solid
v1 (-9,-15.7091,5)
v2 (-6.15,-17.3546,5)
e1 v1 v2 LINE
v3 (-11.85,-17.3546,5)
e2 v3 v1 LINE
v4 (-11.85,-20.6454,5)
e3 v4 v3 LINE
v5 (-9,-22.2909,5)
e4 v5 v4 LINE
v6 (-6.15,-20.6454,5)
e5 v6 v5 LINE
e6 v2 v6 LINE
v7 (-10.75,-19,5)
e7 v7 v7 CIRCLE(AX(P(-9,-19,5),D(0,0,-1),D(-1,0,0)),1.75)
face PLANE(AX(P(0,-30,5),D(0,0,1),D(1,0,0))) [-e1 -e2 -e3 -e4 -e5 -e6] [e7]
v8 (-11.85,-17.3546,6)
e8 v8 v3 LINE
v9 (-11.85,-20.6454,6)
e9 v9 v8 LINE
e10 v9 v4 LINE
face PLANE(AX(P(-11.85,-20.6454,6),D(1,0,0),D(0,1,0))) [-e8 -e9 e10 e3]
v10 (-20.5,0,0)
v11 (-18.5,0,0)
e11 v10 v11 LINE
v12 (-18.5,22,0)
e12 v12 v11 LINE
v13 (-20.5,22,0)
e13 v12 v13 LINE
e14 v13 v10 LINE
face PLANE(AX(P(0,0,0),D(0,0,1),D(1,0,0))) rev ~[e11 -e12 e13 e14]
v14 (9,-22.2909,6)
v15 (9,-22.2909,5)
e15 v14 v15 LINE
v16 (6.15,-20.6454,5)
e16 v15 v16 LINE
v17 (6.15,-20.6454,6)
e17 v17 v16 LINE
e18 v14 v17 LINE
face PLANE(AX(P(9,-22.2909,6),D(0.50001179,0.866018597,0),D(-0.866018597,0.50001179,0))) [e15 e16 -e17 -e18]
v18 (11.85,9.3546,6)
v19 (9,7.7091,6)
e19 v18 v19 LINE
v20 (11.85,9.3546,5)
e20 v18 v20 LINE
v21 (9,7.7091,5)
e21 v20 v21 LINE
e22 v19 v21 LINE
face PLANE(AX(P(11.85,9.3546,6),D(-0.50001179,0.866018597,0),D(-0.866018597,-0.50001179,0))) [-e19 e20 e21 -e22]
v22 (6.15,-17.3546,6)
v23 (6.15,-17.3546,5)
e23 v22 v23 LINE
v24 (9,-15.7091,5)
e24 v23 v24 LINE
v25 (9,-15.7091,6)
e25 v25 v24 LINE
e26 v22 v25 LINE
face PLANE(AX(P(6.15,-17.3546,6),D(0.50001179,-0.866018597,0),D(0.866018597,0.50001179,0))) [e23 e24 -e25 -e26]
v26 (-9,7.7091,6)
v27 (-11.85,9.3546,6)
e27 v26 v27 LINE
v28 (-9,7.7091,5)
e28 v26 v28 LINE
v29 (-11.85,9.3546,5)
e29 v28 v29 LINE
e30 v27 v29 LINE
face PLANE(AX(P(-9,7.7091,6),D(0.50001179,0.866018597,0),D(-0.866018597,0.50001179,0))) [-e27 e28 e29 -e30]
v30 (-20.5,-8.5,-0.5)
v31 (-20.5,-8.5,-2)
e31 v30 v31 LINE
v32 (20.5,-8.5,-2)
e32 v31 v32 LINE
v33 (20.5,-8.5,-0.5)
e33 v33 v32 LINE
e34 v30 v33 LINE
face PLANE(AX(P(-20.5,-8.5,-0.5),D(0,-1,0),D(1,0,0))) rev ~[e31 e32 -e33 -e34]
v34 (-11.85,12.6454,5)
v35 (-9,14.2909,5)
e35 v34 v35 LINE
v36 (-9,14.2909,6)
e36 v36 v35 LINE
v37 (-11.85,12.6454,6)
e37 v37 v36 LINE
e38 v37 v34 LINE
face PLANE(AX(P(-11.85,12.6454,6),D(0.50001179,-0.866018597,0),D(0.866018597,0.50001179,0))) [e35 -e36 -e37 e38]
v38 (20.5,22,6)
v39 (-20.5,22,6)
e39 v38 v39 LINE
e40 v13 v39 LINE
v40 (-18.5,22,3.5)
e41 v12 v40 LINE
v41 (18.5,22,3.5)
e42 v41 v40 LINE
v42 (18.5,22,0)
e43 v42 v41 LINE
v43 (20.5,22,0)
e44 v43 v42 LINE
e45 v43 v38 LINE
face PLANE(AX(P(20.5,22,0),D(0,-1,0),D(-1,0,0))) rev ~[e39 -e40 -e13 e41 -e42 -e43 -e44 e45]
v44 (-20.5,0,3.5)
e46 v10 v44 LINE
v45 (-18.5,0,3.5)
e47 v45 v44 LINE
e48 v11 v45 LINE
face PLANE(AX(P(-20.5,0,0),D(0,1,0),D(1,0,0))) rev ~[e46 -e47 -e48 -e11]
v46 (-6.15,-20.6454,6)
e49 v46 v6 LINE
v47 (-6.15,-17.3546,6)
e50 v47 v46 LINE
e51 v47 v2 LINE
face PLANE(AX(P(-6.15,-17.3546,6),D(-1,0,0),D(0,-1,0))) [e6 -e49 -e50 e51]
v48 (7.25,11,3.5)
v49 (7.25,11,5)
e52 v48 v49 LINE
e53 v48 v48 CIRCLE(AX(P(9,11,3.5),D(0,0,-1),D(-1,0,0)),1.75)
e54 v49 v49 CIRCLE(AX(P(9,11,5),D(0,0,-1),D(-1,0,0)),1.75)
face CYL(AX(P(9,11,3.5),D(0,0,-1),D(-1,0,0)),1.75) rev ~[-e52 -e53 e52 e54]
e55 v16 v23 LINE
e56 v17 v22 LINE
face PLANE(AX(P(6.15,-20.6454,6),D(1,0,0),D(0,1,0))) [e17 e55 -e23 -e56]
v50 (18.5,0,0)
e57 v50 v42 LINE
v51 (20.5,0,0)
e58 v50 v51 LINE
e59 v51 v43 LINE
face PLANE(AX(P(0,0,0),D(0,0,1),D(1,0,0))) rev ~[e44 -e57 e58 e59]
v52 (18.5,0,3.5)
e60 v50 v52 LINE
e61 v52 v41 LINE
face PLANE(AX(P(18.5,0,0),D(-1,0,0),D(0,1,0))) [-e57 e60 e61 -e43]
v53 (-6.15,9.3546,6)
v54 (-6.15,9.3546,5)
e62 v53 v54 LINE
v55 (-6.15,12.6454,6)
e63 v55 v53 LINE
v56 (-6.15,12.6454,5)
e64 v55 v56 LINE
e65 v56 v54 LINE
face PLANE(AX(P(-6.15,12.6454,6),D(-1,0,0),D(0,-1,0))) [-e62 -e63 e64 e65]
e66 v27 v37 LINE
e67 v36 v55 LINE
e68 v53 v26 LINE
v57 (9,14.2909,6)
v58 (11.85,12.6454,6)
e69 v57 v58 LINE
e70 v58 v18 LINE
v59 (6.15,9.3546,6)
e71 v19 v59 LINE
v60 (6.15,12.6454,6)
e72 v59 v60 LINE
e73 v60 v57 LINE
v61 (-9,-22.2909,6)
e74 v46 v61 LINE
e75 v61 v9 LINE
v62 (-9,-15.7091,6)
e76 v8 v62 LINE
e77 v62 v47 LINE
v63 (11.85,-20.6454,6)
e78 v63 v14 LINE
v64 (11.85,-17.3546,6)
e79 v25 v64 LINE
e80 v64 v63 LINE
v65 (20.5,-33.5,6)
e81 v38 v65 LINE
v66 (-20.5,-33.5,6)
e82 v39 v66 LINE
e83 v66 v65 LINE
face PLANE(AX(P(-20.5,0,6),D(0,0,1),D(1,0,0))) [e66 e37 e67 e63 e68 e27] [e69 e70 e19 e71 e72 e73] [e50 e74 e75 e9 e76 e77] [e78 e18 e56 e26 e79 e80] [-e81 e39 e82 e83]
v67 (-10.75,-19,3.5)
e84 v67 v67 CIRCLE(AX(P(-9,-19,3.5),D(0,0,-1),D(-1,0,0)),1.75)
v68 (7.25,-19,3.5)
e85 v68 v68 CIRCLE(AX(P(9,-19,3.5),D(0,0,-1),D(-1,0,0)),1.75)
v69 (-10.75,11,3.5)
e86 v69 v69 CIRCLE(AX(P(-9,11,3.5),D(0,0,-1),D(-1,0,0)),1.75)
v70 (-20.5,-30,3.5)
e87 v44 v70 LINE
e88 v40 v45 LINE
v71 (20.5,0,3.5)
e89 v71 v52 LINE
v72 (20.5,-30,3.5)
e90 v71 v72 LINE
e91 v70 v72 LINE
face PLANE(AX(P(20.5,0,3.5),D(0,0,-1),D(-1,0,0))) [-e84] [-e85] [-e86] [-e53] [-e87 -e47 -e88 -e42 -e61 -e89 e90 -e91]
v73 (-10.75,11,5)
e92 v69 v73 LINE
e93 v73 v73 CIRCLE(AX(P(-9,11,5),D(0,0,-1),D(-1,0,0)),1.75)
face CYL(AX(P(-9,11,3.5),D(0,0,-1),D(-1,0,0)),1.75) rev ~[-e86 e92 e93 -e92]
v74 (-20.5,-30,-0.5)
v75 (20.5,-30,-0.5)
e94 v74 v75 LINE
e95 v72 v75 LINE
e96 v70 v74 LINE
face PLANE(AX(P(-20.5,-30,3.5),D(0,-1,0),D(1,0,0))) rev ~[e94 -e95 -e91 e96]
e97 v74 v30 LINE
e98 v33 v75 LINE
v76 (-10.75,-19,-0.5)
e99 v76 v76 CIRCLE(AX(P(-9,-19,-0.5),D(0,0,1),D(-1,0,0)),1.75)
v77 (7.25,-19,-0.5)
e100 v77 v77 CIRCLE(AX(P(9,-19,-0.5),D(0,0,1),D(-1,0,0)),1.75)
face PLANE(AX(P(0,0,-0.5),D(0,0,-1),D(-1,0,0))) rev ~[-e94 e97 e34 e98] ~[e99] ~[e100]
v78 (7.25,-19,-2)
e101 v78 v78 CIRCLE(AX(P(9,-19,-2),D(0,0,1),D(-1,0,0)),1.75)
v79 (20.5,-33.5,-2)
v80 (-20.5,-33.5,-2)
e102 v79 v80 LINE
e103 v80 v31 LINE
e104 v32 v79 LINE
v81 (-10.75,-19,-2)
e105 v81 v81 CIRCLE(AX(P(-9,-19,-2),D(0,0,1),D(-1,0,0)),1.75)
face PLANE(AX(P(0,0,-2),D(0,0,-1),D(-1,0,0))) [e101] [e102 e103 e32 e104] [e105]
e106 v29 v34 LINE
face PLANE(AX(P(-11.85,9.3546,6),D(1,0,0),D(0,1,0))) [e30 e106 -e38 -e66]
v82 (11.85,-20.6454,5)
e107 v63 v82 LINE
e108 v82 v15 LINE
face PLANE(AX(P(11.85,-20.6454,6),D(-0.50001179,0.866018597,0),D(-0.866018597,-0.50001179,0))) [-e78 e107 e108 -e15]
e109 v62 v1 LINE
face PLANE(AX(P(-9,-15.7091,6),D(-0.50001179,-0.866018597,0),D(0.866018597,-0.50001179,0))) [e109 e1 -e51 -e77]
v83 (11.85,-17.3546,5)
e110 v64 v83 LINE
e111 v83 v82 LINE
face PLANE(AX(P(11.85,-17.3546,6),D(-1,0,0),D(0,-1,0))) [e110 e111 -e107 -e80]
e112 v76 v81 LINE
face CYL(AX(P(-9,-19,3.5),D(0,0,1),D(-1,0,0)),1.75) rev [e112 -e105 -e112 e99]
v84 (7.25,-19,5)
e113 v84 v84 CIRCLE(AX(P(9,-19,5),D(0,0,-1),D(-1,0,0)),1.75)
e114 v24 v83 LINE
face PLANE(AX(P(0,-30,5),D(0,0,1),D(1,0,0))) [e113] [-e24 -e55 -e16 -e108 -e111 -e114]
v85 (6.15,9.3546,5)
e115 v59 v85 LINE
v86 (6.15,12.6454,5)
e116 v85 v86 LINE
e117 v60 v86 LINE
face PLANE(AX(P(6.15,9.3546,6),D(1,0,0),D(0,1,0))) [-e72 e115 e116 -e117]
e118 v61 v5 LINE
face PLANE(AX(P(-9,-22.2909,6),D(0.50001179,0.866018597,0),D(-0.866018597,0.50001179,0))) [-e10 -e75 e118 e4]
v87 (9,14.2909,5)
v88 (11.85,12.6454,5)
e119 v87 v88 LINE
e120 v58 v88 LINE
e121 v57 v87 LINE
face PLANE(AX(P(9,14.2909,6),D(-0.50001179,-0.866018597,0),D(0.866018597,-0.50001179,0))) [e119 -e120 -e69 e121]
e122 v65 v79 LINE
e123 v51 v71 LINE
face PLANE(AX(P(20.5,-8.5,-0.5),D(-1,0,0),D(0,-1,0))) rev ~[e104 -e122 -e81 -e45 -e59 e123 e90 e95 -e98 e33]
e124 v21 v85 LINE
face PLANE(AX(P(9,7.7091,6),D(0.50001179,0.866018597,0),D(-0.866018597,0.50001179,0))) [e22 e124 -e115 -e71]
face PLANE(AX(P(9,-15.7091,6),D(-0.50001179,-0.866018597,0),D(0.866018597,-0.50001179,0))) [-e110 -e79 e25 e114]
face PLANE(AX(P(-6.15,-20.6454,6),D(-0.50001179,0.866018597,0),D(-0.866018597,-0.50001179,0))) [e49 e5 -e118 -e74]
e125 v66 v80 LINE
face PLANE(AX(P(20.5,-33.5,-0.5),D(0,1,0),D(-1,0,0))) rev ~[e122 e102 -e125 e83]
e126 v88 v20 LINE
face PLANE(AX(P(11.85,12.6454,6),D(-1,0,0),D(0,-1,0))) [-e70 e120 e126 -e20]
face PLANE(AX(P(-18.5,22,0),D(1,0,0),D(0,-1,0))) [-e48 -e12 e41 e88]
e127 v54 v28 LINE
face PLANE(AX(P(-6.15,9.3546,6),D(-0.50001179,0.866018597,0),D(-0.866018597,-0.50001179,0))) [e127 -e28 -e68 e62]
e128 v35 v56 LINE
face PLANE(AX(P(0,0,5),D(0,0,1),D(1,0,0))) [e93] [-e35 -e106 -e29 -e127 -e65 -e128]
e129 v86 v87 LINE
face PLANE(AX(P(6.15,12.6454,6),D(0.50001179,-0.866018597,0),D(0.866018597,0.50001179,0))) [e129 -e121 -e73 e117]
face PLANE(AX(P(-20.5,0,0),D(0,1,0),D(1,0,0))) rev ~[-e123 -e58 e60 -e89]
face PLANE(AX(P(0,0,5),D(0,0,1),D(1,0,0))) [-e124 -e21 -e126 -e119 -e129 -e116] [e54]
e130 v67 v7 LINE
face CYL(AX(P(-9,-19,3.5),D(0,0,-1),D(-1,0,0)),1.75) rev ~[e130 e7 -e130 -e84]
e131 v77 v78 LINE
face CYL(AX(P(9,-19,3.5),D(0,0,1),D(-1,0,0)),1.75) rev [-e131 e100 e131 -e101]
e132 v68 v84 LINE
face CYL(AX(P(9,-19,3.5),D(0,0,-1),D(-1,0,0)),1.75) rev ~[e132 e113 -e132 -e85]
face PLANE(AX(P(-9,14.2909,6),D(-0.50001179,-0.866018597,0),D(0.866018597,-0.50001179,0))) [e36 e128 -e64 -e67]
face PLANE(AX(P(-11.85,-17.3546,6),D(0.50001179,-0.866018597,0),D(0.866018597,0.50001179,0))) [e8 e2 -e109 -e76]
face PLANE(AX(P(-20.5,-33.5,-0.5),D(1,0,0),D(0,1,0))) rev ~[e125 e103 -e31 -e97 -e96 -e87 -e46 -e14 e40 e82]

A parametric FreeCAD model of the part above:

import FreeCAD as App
import Part
import Sketcher

V = App.Vector
Q = App.Units.Quantity

doc = App.newDocument("Part")
params = doc.addObject("Spreadsheet::Sheet", "Params")
for row, (alias, value) in enumerate([
    ("sketch1_width", "41 mm"),
    ("sketch1_height", "22 mm"),
    ("pad1_length", "6 mm"),
    ("sketch2_width", "37 mm"),
    ("sketch2_height", "22 mm"),
    ("pocket1_length", "3.5 mm"),
    ("sketch3_diameter", "3.5 mm"),
    ("pocket2_length", "50 mm"),
    ("pocket3_length", "1 mm"),
    ("sketch5_width", "41 mm"),
    ("sketch5_height", "2.5 mm"),
    ("pad2_length", "33.5 mm"),
    ("sketch6_height", "3.5 mm"),
    ("sketch6_width", "41 mm"),
    ("pad3_length", "4 mm"),
    ("sketch7_height", "25 mm"),
    ("sketch7_width", "41 mm"),
    ("pad4_length", "1.5 mm"),
    ("linearpattern_pitch", "30 mm"),
], start=1):
    params.set(f"A{row}", alias)
    params.set(f"B{row}", "=" + value)
    params.setAlias(f"B{row}", alias)

body = doc.addObject("PartDesign::Body", "Body")

sketch1 = body.newObject("Sketcher::SketchObject", "Sketch")
sketch1.AttachmentSupport = (doc.getObject("XY_Plane"), [""])
sketch1.MapMode = "FlatFace"
sketch1.addGeometry([
    Part.LineSegment(V(-20.5, 22, 0), V(-20.5, 0, 0)),
    Part.LineSegment(V(-20.5, 0, 0), V(20.5, 0, 0)),
    Part.LineSegment(V(20.5, 0, 0), V(20.5, 22, 0)),
    Part.LineSegment(V(20.5, 22, 0), V(-20.5, 22, 0)),
], False)
sketch1.addConstraint([
    Sketcher.Constraint("Coincident", 0, 2, 1, 1),
    Sketcher.Constraint("Coincident", 1, 2, 2, 1),
    Sketcher.Constraint("Coincident", 2, 2, 3, 1),
    Sketcher.Constraint("Coincident", 3, 2, 0, 1),
    Sketcher.Constraint("Vertical", 0),
    Sketcher.Constraint("Horizontal", 1),
    Sketcher.Constraint("Vertical", 2),
    Sketcher.Constraint("Horizontal", 3),
    Sketcher.Constraint("Symmetric", 0, 2, 1, 2, -1, 1),
    Sketcher.Constraint("DistanceX", 1, 1, 1, 2, 41.0),
    Sketcher.Constraint("DistanceY", 0, 2, 0, 1, 22.0),
])
sketch1.setExpression("Constraints[9]", "Params.sketch1_width")
sketch1.setExpression("Constraints[10]", "Params.sketch1_height")
pad1 = body.newObject("PartDesign::Pad", "Pad")
pad1.Profile = sketch1
pad1.setExpression("Length", "Params.pad1_length")

sketch2 = body.newObject("Sketcher::SketchObject", "Sketch001")
sketch2.AttachmentSupport = (doc.getObject("XY_Plane"), [""])
sketch2.MapMode = "FlatFace"
sketch2.addGeometry([
    Part.LineSegment(V(-18.5, 22, 0), V(18.5, 22, 0)),
    Part.LineSegment(V(18.5, 22, 0), V(18.5, 0, 0)),
    Part.LineSegment(V(18.5, 0, 0), V(-18.5, 0, 0)),
    Part.LineSegment(V(-18.5, 0, 0), V(-18.5, 22, 0)),
], False)
sketch2.addConstraint([
    Sketcher.Constraint("Coincident", 0, 2, 1, 1),
    Sketcher.Constraint("Coincident", 1, 2, 2, 1),
    Sketcher.Constraint("Coincident", 2, 2, 3, 1),
    Sketcher.Constraint("Coincident", 3, 2, 0, 1),
    Sketcher.Constraint("Horizontal", 0),
    Sketcher.Constraint("Vertical", 1),
    Sketcher.Constraint("Horizontal", 2),
    Sketcher.Constraint("Vertical", 3),
    Sketcher.Constraint("Symmetric", 1, 2, 2, 2, -1, 1),
    Sketcher.Constraint("DistanceX", 0, 1, 0, 2, 37.0),
    Sketcher.Constraint("DistanceY", 1, 2, 1, 1, 22.0),
])
sketch2.setExpression("Constraints[9]", "Params.sketch2_width")
sketch2.setExpression("Constraints[10]", "Params.sketch2_height")
pocket1 = body.newObject("PartDesign::Pocket", "Pocket")
pocket1.Profile = sketch2
pocket1.setExpression("Length", "Params.pocket1_length")
pocket1.Reversed = True

sketch3 = body.newObject("Sketcher::SketchObject", "Sketch002")
sketch3.AttachmentSupport = (doc.getObject("XY_Plane"), [""])
sketch3.MapMode = "FlatFace"
sketch3.AttachmentOffset = App.Placement(V(0, 0, 3.5), App.Rotation())
sketch3.addGeometry([
    Part.Circle(V(9, 11, 0), V(0, 0, 1), 1.75),
    Part.Circle(V(-9, 11, 0), V(0, 0, 1), 1.75),
], False)
sketch3.addConstraint([
    Sketcher.Constraint("Equal", 0, 1),
    Sketcher.Constraint("Symmetric", 0, 3, 1, 3, -2),
    Sketcher.Constraint("Diameter", 0, 3.5),
    Sketcher.Constraint("DistanceX", 1, 3, 0, 3, 18.0),
    Sketcher.Constraint("DistanceY", -1, 1, 0, 3, 11.0),
])
sketch3.setExpression("Constraints[2]", "Params.sketch3_diameter")
pocket2 = body.newObject("PartDesign::Pocket", "Pocket001")
pocket2.Profile = sketch3
pocket2.setExpression("Length", "Params.pocket2_length")
pocket2.Midplane = True

sketch4 = body.newObject("Sketcher::SketchObject", "Sketch003")
sketch4.AttachmentSupport = (doc.getObject("XY_Plane"), [""])
sketch4.MapMode = "FlatFace"
sketch4.AttachmentOffset = App.Placement(V(0, 0, 6), App.Rotation())
sketch4.addGeometry([
    Part.LineSegment(V(-11.85, 9.3546, 0), V(-9, 7.7091, 0)),
    Part.LineSegment(V(-9, 7.7091, 0), V(-6.15, 9.3546, 0)),
    Part.LineSegment(V(-6.15, 9.3546, 0), V(-6.15, 12.6454, 0)),
    Part.LineSegment(V(-6.15, 12.6454, 0), V(-9, 14.2909, 0)),
    Part.LineSegment(V(-9, 14.2909, 0), V(-11.85, 12.6454, 0)),
    Part.LineSegment(V(-11.85, 12.6454, 0), V(-11.85, 9.3546, 0)),
    Part.LineSegment(V(6.15, 9.3546, 0), V(9, 7.7091, 0)),
    Part.LineSegment(V(9, 7.7091, 0), V(11.85, 9.3546, 0)),
    Part.LineSegment(V(11.85, 9.3546, 0), V(11.85, 12.6454, 0)),
    Part.LineSegment(V(11.85, 12.6454, 0), V(9, 14.2909, 0)),
    Part.LineSegment(V(9, 14.2909, 0), V(6.15, 12.6454, 0)),
    Part.LineSegment(V(6.15, 12.6454, 0), V(6.15, 9.3546, 0)),
], False)
sketch4.addConstraint([
    Sketcher.Constraint("Coincident", 0, 2, 1, 1),
    Sketcher.Constraint("Coincident", 1, 2, 2, 1),
    Sketcher.Constraint("Coincident", 2, 2, 3, 1),
    Sketcher.Constraint("Coincident", 3, 2, 4, 1),
    Sketcher.Constraint("Coincident", 4, 2, 5, 1),
    Sketcher.Constraint("Coincident", 5, 2, 0, 1),
    Sketcher.Constraint("Coincident", 6, 2, 7, 1),
    Sketcher.Constraint("Coincident", 7, 2, 8, 1),
    Sketcher.Constraint("Coincident", 8, 2, 9, 1),
    Sketcher.Constraint("Coincident", 9, 2, 10, 1),
    Sketcher.Constraint("Coincident", 10, 2, 11, 1),
    Sketcher.Constraint("Coincident", 11, 2, 6, 1),
    Sketcher.Constraint("Vertical", 2),
    Sketcher.Constraint("Vertical", 5),
    Sketcher.Constraint("Vertical", 8),
    Sketcher.Constraint("Vertical", 11),
    Sketcher.Constraint("Symmetric", 0, 2, 6, 2, -2),
    Sketcher.Constraint("Symmetric", 5, 2, 7, 2, -2),
    Sketcher.Constraint("Symmetric", 3, 2, 9, 2, -2),
    Sketcher.Constraint("Symmetric", 2, 2, 10, 2, -2),
    Sketcher.Constraint("Parallel", 0, 3),
    Sketcher.Constraint("Parallel", 1, 4),
    Sketcher.Constraint("Parallel", 3, 6),
    Sketcher.Constraint("Parallel", 4, 7),
    Sketcher.Constraint("Parallel", 6, 9),
    Sketcher.Constraint("Horizontal", 2, 2, 4, 2),
    Sketcher.Constraint("Horizontal", 1, 2, 5, 2),
    Sketcher.Constraint("DistanceX", 4, 2, 2, 2, 5.7),
    Sketcher.Constraint("Angle", 0, Q("-30.0008 deg")),
    Sketcher.Constraint("DistanceX", 0, 2, -1, 1, 9.0),
    Sketcher.Constraint("DistanceY", 2, 1, 2, 2, 3.2908),
    Sketcher.Constraint("DistanceY", -1, 1, 0, 2, 7.709),
])
pocket3 = body.newObject("PartDesign::Pocket", "Pocket002")
pocket3.Profile = sketch4
pocket3.setExpression("Length", "Params.pocket3_length")

sketch5 = body.newObject("Sketcher::SketchObject", "Sketch004")
sketch5.AttachmentSupport = (doc.getObject("XZ_Plane"), [""])
sketch5.MapMode = "FlatFace"
sketch5.addGeometry([
    Part.LineSegment(V(-20.5, 3.5, 0), V(20.5, 3.5, 0)),
    Part.LineSegment(V(20.5, 3.5, 0), V(20.5, 6, 0)),
    Part.LineSegment(V(20.5, 6, 0), V(-20.5, 6, 0)),
    Part.LineSegment(V(-20.5, 6, 0), V(-20.5, 3.5, 0)),
], False)
sketch5.addConstraint([
    Sketcher.Constraint("Coincident", 0, 2, 1, 1),
    Sketcher.Constraint("Coincident", 1, 2, 2, 1),
    Sketcher.Constraint("Coincident", 2, 2, 3, 1),
    Sketcher.Constraint("Coincident", 3, 2, 0, 1),
    Sketcher.Constraint("Horizontal", 0),
    Sketcher.Constraint("Vertical", 1),
    Sketcher.Constraint("Horizontal", 2),
    Sketcher.Constraint("Vertical", 3),
    Sketcher.Constraint("DistanceX", 0, 1, 0, 2, 41.0),
    Sketcher.Constraint("DistanceY", 1, 1, 1, 2, 2.5),
    Sketcher.Constraint("DistanceY", -1, 1, 1, 2, 6.0),
    Sketcher.Constraint("DistanceX", -1, 1, 0, 2, 20.5),
])
sketch5.setExpression("Constraints[8]", "Params.sketch5_width")
sketch5.setExpression("Constraints[9]", "Params.sketch5_height")
pad2 = body.newObject("PartDesign::Pad", "Pad001")
pad2.Profile = sketch5
pad2.setExpression("Length", "Params.pad2_length")

sketch6 = body.newObject("Sketcher::SketchObject", "Sketch005")
sketch6.AttachmentSupport = (doc.getObject("XY_Plane"), [""])
sketch6.MapMode = "FlatFace"
sketch6.AttachmentOffset = App.Placement(V(0, 0, 3.5), App.Rotation())
sketch6.addGeometry([
    Part.LineSegment(V(-20.5, -30, 0), V(20.5, -30, 0)),
    Part.LineSegment(V(20.5, -30, 0), V(20.5, -33.5, 0)),
    Part.LineSegment(V(20.5, -33.5, 0), V(-20.5, -33.5, 0)),
    Part.LineSegment(V(-20.5, -33.5, 0), V(-20.5, -30, 0)),
], False)
sketch6.addConstraint([
    Sketcher.Constraint("Coincident", 0, 2, 1, 1),
    Sketcher.Constraint("Coincident", 1, 2, 2, 1),
    Sketcher.Constraint("Coincident", 2, 2, 3, 1),
    Sketcher.Constraint("Coincident", 3, 2, 0, 1),
    Sketcher.Constraint("Horizontal", 0),
    Sketcher.Constraint("Vertical", 1),
    Sketcher.Constraint("Horizontal", 2),
    Sketcher.Constraint("Vertical", 3),
    Sketcher.Constraint("DistanceY", 1, 2, 1, 1, 3.5),
    Sketcher.Constraint("DistanceX", 0, 1, 0, 2, 41.0),
    Sketcher.Constraint("DistanceY", 0, 2, -1, 1, 30.0),
    Sketcher.Constraint("DistanceX", -1, 1, 0, 2, 20.5),
])
sketch6.setExpression("Constraints[8]", "Params.sketch6_height")
sketch6.setExpression("Constraints[9]", "Params.sketch6_width")
pad3 = body.newObject("PartDesign::Pad", "Pad002")
pad3.Profile = sketch6
pad3.setExpression("Length", "Params.pad3_length")
pad3.Reversed = True

sketch7 = body.newObject("Sketcher::SketchObject", "Sketch006")
sketch7.AttachmentSupport = (doc.getObject("XY_Plane"), [""])
sketch7.MapMode = "FlatFace"
sketch7.AttachmentOffset = App.Placement(V(0, 0, -0.5), App.Rotation())
sketch7.addGeometry([
    Part.LineSegment(V(20.5, -8.5, 0), V(20.5, -33.5, 0)),
    Part.LineSegment(V(20.5, -33.5, 0), V(-20.5, -33.5, 0)),
    Part.LineSegment(V(-20.5, -33.5, 0), V(-20.5, -8.5, 0)),
    Part.LineSegment(V(-20.5, -8.5, 0), V(20.5, -8.5, 0)),
], False)
sketch7.addConstraint([
    Sketcher.Constraint("Coincident", 0, 2, 1, 1),
    Sketcher.Constraint("Coincident", 1, 2, 2, 1),
    Sketcher.Constraint("Coincident", 2, 2, 3, 1),
    Sketcher.Constraint("Coincident", 3, 2, 0, 1),
    Sketcher.Constraint("Vertical", 0),
    Sketcher.Constraint("Horizontal", 1),
    Sketcher.Constraint("Vertical", 2),
    Sketcher.Constraint("Horizontal", 3),
    Sketcher.Constraint("DistanceY", 0, 2, 0, 1, 25.0),
    Sketcher.Constraint("DistanceX", 1, 2, 1, 1, 41.0),
    Sketcher.Constraint("DistanceX", -1, 1, 0, 2, 20.5),
    Sketcher.Constraint("DistanceY", 0, 2, -1, 1, 33.5),
])
sketch7.setExpression("Constraints[8]", "Params.sketch7_height")
sketch7.setExpression("Constraints[9]", "Params.sketch7_width")
pad4 = body.newObject("PartDesign::Pad", "Pad003")
pad4.Profile = sketch7
pad4.setExpression("Length", "Params.pad4_length")
pad4.Reversed = True
doc.recompute()

linearpattern = body.newObject("PartDesign::LinearPattern", "LinearPattern")
linearpattern.Originals = [pocket3, pocket2]
linearpattern.Direction = (doc.getObject("Y_Axis"), [""])
linearpattern.Mode = "offset"
linearpattern.setExpression("Offset", "Params.linearpattern_pitch")
linearpattern.Occurrences = 2
linearpattern.Reversed = True
body.Tip = linearpattern

doc.recompute()
